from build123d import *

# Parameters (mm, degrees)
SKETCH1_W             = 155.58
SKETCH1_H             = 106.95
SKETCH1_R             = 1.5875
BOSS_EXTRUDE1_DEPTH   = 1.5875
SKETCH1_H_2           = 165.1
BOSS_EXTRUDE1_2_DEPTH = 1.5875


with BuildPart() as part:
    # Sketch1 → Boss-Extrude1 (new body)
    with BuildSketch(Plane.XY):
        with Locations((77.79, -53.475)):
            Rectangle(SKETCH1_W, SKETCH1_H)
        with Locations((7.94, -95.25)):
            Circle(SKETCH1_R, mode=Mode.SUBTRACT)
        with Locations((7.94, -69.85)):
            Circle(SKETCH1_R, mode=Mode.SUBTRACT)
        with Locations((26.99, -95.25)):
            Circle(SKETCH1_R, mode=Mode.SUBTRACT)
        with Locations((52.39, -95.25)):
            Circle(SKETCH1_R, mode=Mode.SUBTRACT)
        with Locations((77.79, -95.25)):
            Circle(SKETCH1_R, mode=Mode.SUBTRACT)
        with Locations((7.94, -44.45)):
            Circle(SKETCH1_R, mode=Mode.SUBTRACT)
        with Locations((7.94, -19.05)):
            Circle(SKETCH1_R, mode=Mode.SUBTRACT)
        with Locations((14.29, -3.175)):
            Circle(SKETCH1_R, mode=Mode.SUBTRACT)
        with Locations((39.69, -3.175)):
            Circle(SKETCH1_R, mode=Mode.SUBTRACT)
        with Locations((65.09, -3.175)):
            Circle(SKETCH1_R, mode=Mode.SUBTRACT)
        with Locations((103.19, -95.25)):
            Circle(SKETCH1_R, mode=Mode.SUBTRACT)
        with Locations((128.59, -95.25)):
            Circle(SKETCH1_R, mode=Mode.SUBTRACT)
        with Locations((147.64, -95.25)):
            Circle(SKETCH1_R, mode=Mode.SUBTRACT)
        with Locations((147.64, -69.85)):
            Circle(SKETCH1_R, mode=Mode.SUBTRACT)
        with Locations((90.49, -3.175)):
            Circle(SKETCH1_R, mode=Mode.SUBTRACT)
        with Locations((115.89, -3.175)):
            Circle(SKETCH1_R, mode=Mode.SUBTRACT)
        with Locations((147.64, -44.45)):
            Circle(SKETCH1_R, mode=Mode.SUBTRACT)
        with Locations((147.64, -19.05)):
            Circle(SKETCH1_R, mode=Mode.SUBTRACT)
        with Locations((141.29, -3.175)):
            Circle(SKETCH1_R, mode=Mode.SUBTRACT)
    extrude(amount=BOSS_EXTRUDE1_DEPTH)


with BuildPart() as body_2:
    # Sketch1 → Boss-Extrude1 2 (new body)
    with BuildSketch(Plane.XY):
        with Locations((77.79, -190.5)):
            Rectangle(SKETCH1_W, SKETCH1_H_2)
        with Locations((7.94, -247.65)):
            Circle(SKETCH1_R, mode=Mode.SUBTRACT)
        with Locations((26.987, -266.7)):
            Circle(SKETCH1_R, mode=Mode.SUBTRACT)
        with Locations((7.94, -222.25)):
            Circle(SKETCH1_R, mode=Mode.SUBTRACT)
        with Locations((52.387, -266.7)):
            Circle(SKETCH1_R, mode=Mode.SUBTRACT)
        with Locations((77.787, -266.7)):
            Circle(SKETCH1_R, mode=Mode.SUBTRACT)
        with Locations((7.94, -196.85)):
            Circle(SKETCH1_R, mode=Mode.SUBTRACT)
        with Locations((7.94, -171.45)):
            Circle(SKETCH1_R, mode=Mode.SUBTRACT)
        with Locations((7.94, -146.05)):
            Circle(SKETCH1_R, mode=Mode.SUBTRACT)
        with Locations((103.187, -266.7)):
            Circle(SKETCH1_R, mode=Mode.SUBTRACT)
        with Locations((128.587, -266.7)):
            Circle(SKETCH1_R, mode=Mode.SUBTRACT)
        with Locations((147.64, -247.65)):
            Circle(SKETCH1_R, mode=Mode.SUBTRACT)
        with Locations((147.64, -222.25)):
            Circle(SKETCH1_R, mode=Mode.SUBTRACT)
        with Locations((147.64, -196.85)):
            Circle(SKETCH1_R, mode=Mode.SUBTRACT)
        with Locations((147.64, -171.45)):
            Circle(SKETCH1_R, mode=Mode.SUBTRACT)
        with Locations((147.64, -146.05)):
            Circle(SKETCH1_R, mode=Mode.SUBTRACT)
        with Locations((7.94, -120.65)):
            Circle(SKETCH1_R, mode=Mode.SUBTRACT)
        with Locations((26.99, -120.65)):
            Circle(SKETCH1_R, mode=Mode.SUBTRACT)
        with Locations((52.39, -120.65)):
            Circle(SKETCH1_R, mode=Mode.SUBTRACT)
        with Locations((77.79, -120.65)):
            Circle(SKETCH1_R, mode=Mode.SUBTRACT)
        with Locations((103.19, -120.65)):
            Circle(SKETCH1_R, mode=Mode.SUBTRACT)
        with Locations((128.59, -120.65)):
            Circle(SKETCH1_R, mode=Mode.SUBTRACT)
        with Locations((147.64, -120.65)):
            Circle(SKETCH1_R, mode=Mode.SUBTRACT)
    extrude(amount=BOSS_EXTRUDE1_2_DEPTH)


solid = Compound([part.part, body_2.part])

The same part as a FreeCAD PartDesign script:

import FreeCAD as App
import Part
import Sketcher
Q = App.Units.Quantity

doc = App.newDocument("Part")
body = doc.addObject("PartDesign::Body", "Body")

sketch1 = body.newObject("Sketcher::SketchObject", "Sketch")
sketch1.AttachmentSupport = (doc.getObject("XY_Plane"), [""])
sketch1.MapMode = "FlatFace"
sketch1.addGeometry([
    Part.LineSegment(App.Vector(0, 0, 0), App.Vector(0, -107, 0)),
    Part.LineSegment(App.Vector(0, -107, 0), App.Vector(155.6, -107, 0)),
    Part.LineSegment(App.Vector(155.6, -107, 0), App.Vector(155.6, 0, 0)),
    Part.LineSegment(App.Vector(155.6, 0, 0), App.Vector(0, 0, 0)),
    Part.Circle(App.Vector(7.9, -95.2, 0), App.Vector(0, 0, 1), 1.6),
    Part.Circle(App.Vector(27, -95.2, 0), App.Vector(0, 0, 1), 1.6),
    Part.Circle(App.Vector(52.4, -95.2, 0), App.Vector(0, 0, 1), 1.6),
    Part.Circle(App.Vector(7.9, -69.8, 0), App.Vector(0, 0, 1), 1.6),
    Part.Circle(App.Vector(77.8, -95.2, 0), App.Vector(0, 0, 1), 1.6),
    Part.Circle(App.Vector(103.2, -95.2, 0), App.Vector(0, 0, 1), 1.6),
    Part.Circle(App.Vector(128.6, -95.2, 0), App.Vector(0, 0, 1), 1.6),
    Part.Circle(App.Vector(147.6, -95.2, 0), App.Vector(0, 0, 1), 1.6),
    Part.Circle(App.Vector(147.6, -69.8, 0), App.Vector(0, 0, 1), 1.6),
    Part.Circle(App.Vector(7.9, -44.5, 0), App.Vector(0, 0, 1), 1.6),
    Part.Circle(App.Vector(7.9, -19.1, 0), App.Vector(0, 0, 1), 1.6),
    Part.Circle(App.Vector(14.3, -3.2, 0), App.Vector(0, 0, 1), 1.6),
    Part.Circle(App.Vector(39.7, -3.2, 0), App.Vector(0, 0, 1), 1.6),
    Part.Circle(App.Vector(65.1, -3.2, 0), App.Vector(0, 0, 1), 1.6),
    Part.Circle(App.Vector(147.6, -44.5, 0), App.Vector(0, 0, 1), 1.6),
    Part.Circle(App.Vector(90.5, -3.2, 0), App.Vector(0, 0, 1), 1.6),
    Part.Circle(App.Vector(147.6, -19.1, 0), App.Vector(0, 0, 1), 1.6),
    Part.Circle(App.Vector(115.9, -3.2, 0), App.Vector(0, 0, 1), 1.6),
    Part.Circle(App.Vector(141.3, -3.2, 0), App.Vector(0, 0, 1), 1.6),
], False)
sketch1.addConstraint([
    Sketcher.Constraint("Coincident", 0, 2, 1, 1),
    Sketcher.Constraint("Coincident", 1, 2, 2, 1),
    Sketcher.Constraint("Coincident", 2, 2, 3, 1),
    Sketcher.Constraint("Coincident", 3, 2, 0, 1),
    Sketcher.Constraint("Vertical", 0),
    Sketcher.Constraint("Horizontal", 1),
    Sketcher.Constraint("Vertical", 2),
    Sketcher.Constraint("Horizontal", 3),
    Sketcher.Constraint("Coincident", 3, 2, -1, 1),
    Sketcher.Constraint("Equal", 4, 5),
    Sketcher.Constraint("Equal", 5, 6),
    Sketcher.Constraint("Equal", 6, 7),
    Sketcher.Constraint("Equal", 7, 8),
    Sketcher.Constraint("Equal", 8, 9),
    Sketcher.Constraint("Equal", 9, 10),
    Sketcher.Constraint("Equal", 10, 11),
    Sketcher.Constraint("Equal", 11, 12),
    Sketcher.Constraint("Equal", 12, 13),
    Sketcher.Constraint("Equal", 13, 14),
    Sketcher.Constraint("Equal", 14, 15),
    Sketcher.Constraint("Equal", 15, 16),
    Sketcher.Constraint("Equal", 16, 17),
    Sketcher.Constraint("Equal", 17, 18),
    Sketcher.Constraint("Equal", 18, 19),
    Sketcher.Constraint("Equal", 19, 20),
    Sketcher.Constraint("Equal", 20, 21),
    Sketcher.Constraint("Equal", 21, 22),
    Sketcher.Constraint("Horizontal", 4, 3, 5, 3),
    Sketcher.Constraint("Horizontal", 5, 3, 6, 3),
    Sketcher.Constraint("Horizontal", 6, 3, 8, 3),
    Sketcher.Constraint("Horizontal", 8, 3, 9, 3),
    Sketcher.Constraint("Horizontal", 9, 3, 10, 3),
    Sketcher.Constraint("Horizontal", 10, 3, 11, 3),
    Sketcher.Constraint("Horizontal", 7, 3, 12, 3),
    Sketcher.Constraint("Horizontal", 15, 3, 16, 3),
    Sketcher.Constraint("Horizontal", 16, 3, 17, 3),
    Sketcher.Constraint("Horizontal", 13, 3, 18, 3),
    Sketcher.Constraint("Horizontal", 17, 3, 19, 3),
    Sketcher.Constraint("Horizontal", 14, 3, 20, 3),
    Sketcher.Constraint("Horizontal", 19, 3, 21, 3),
    Sketcher.Constraint("Horizontal", 21, 3, 22, 3),
    Sketcher.Constraint("Vertical", 4, 3, 7, 3),
    Sketcher.Constraint("Vertical", 11, 3, 12, 3),
    Sketcher.Constraint("Vertical", 7, 3, 13, 3),
    Sketcher.Constraint("Vertical", 13, 3, 14, 3),
    Sketcher.Constraint("Vertical", 12, 3, 18, 3),
    Sketcher.Constraint("Vertical", 18, 3, 20, 3),
    Sketcher.Constraint("Diameter", 4, Q("0.125 in")),
    Sketcher.Constraint("DistanceX", 5, 3, 6, 3, Q("1 in")),
    Sketcher.Constraint("DistanceY", 4, 3, 7, 3, Q("1 in")),
    Sketcher.Constraint("DistanceX", 6, 3, 8, 3, Q("1 in")),
    Sketcher.Constraint("DistanceX", 8, 3, 9, 3, Q("1 in")),
    Sketcher.Constraint("DistanceX", 9, 3, 10, 3, Q("1 in")),
    Sketcher.Constraint("DistanceY", 7, 3, 13, 3, Q("1 in")),
    Sketcher.Constraint("DistanceY", 13, 3, 14, 3, Q("1 in")),
    Sketcher.Constraint("DistanceX", 15, 3, 16, 3, Q("1 in")),
    Sketcher.Constraint("DistanceX", 16, 3, 17, 3, Q("1 in")),
    Sketcher.Constraint("DistanceX", 17, 3, 19, 3, Q("1 in")),
    Sketcher.Constraint("DistanceX", 19, 3, 21, 3, Q("1 in")),
    Sketcher.Constraint("DistanceX", 21, 3, 22, 3, Q("1 in")),
    Sketcher.Constraint("DistanceX", 15, 3, 5, 3, Q("0.5 in")),
    Sketcher.Constraint("DistanceY", 4, 3, -1, 1, Q("3.75 in")),
    Sketcher.Constraint("DistanceX", 4, 3, 5, 3, Q("0.75 in")),
    Sketcher.Constraint("DistanceX", 10, 3, 11, 3, Q("0.75 in")),
    Sketcher.Constraint("DistanceY", 15, 3, -1, 1, Q("0.125 in")),
    Sketcher.Constraint("DistanceX", 1, 1, 1, 2, Q("155.58 mm")),
    Sketcher.Constraint("DistanceY", 0, 2, 0, 1, Q("106.95 mm")),
    Sketcher.Constraint("DistanceX", -1, 1, 4, 3, Q("7.94 mm")),
])
pad1 = body.newObject("PartDesign::Pad", "Pad")
pad1.Profile = sketch1
pad1.Length = Q("0.0625 in")
body2 = doc.addObject("PartDesign::Body", "Body001")

sketch2 = body2.newObject("Sketcher::SketchObject", "Sketch001")
sketch2.AttachmentSupport = (doc.getObject("XY_Plane001"), [""])
sketch2.MapMode = "FlatFace"
sketch2.addGeometry([
    Part.LineSegment(App.Vector(0, -108, 0), App.Vector(0, -273.1, 0)),
    Part.LineSegment(App.Vector(0, -273.1, 0), App.Vector(155.6, -273.1, 0)),
    Part.LineSegment(App.Vector(155.6, -273.1, 0), App.Vector(155.6, -108, 0)),
    Part.LineSegment(App.Vector(155.6, -108, 0), App.Vector(0, -108, 0)),
    Part.Circle(App.Vector(27, -266.7, 0), App.Vector(0, 0, 1), 1.6),
    Part.Circle(App.Vector(7.9, -247.7, 0), App.Vector(0, 0, 1), 1.6),
    Part.Circle(App.Vector(52.4, -266.7, 0), App.Vector(0, 0, 1), 1.6),
    Part.Circle(App.Vector(77.8, -266.7, 0), App.Vector(0, 0, 1), 1.6),
    Part.Circle(App.Vector(7.9, -222.2, 0), App.Vector(0, 0, 1), 1.6),
    Part.Circle(App.Vector(7.9, -196.8, 0), App.Vector(0, 0, 1), 1.6),
    Part.Circle(App.Vector(103.2, -266.7, 0), App.Vector(0, 0, 1), 1.6),
    Part.Circle(App.Vector(128.6, -266.7, 0), App.Vector(0, 0, 1), 1.6),
    Part.Circle(App.Vector(147.6, -247.7, 0), App.Vector(0, 0, 1), 1.6),
    Part.Circle(App.Vector(147.6, -222.2, 0), App.Vector(0, 0, 1), 1.6),
    Part.Circle(App.Vector(147.6, -196.8, 0), App.Vector(0, 0, 1), 1.6),
    Part.Circle(App.Vector(7.9, -171.4, 0), App.Vector(0, 0, 1), 1.6),
    Part.Circle(App.Vector(7.9, -146.1, 0), App.Vector(0, 0, 1), 1.6),
    Part.Circle(App.Vector(7.9, -120.7, 0), App.Vector(0, 0, 1), 1.6),
    Part.Circle(App.Vector(27, -120.7, 0), App.Vector(0, 0, 1), 1.6),
    Part.Circle(App.Vector(52.4, -120.7, 0), App.Vector(0, 0, 1), 1.6),
    Part.Circle(App.Vector(147.6, -171.4, 0), App.Vector(0, 0, 1), 1.6),
    Part.Circle(App.Vector(77.8, -120.7, 0), App.Vector(0, 0, 1), 1.6),
    Part.Circle(App.Vector(103.2, -120.7, 0), App.Vector(0, 0, 1), 1.6),
    Part.Circle(App.Vector(147.6, -146.1, 0), App.Vector(0, 0, 1), 1.6),
    Part.Circle(App.Vector(128.6, -120.7, 0), App.Vector(0, 0, 1), 1.6),
    Part.Circle(App.Vector(147.6, -120.7, 0), App.Vector(0, 0, 1), 1.6),
], False)
sketch2.addConstraint([
    Sketcher.Constraint("Coincident", 0, 2, 1, 1),
    Sketcher.Constraint("Coincident", 1, 2, 2, 1),
    Sketcher.Constraint("Coincident", 2, 2, 3, 1),
    Sketcher.Constraint("Coincident", 3, 2, 0, 1),
    Sketcher.Constraint("Vertical", 0),
    Sketcher.Constraint("Horizontal", 1),
    Sketcher.Constraint("Vertical", 2),
    Sketcher.Constraint("Horizontal", 3),
    Sketcher.Constraint("Equal", 4, 5),
    Sketcher.Constraint("Equal", 5, 6),
    Sketcher.Constraint("Equal", 6, 7),
    Sketcher.Constraint("Equal", 7, 8),
    Sketcher.Constraint("Equal", 8, 9),
    Sketcher.Constraint("Equal", 9, 10),
    Sketcher.Constraint("Equal", 10, 11),
    Sketcher.Constraint("Equal", 11, 12),
    Sketcher.Constraint("Equal", 12, 13),
    Sketcher.Constraint("Equal", 13, 14),
    Sketcher.Constraint("Equal", 14, 15),
    Sketcher.Constraint("Equal", 15, 16),
    Sketcher.Constraint("Equal", 16, 17),
    Sketcher.Constraint("Equal", 17, 18),
    Sketcher.Constraint("Equal", 18, 19),
    Sketcher.Constraint("Equal", 19, 20),
    Sketcher.Constraint("Equal", 20, 21),
    Sketcher.Constraint("Equal", 21, 22),
    Sketcher.Constraint("Equal", 22, 23),
    Sketcher.Constraint("Equal", 23, 24),
    Sketcher.Constraint("Equal", 24, 25),
    Sketcher.Constraint("PointOnObject", 0, 2, -2),
    Sketcher.Constraint("Horizontal", 4, 3, 6, 3),
    Sketcher.Constraint("Horizontal", 6, 3, 7, 3),
    Sketcher.Constraint("Horizontal", 7, 3, 10, 3),
    Sketcher.Constraint("Horizontal", 10, 3, 11, 3),
    Sketcher.Constraint("Horizontal", 5, 3, 12, 3),
    Sketcher.Constraint("Horizontal", 8, 3, 13, 3),
    Sketcher.Constraint("Horizontal", 9, 3, 14, 3),
    Sketcher.Constraint("Horizontal", 17, 3, 18, 3),
    Sketcher.Constraint("Horizontal", 18, 3, 19, 3),
    Sketcher.Constraint("Horizontal", 15, 3, 20, 3),
    Sketcher.Constraint("Horizontal", 19, 3, 21, 3),
    Sketcher.Constraint("Horizontal", 21, 3, 22, 3),
    Sketcher.Constraint("Horizontal", 16, 3, 23, 3),
    Sketcher.Constraint("Horizontal", 22, 3, 24, 3),
    Sketcher.Constraint("Horizontal", 24, 3, 25, 3),
    Sketcher.Constraint("Vertical", 5, 3, 8, 3),
    Sketcher.Constraint("Vertical", 8, 3, 9, 3),
    Sketcher.Constraint("Vertical", 12, 3, 13, 3),
    Sketcher.Constraint("Vertical", 13, 3, 14, 3),
    Sketcher.Constraint("Vertical", 9, 3, 15, 3),
    Sketcher.Constraint("Vertical", 15, 3, 16, 3),
    Sketcher.Constraint("Vertical", 16, 3, 17, 3),
    Sketcher.Constraint("Vertical", 14, 3, 20, 3),
    Sketcher.Constraint("Vertical", 20, 3, 23, 3),
    Sketcher.Constraint("Vertical", 23, 3, 25, 3),
    Sketcher.Constraint("Diameter", 4, Q("0.125 in")),
    Sketcher.Constraint("DistanceY", 0, 2, 0, 1, Q("6.5 in")),
    Sketcher.Constraint("DistanceX", 4, 3, 6, 3, Q("1 in")),
    Sketcher.Constraint("DistanceX", 6, 3, 7, 3, Q("1 in")),
    Sketcher.Constraint("DistanceY", 5, 3, 8, 3, Q("1 in")),
    Sketcher.Constraint("DistanceY", 8, 3, 9, 3, Q("1 in")),
    Sketcher.Constraint("DistanceX", 7, 3, 10, 3, Q("1 in")),
    Sketcher.Constraint("DistanceX", 10, 3, 11, 3, Q("1 in")),
    Sketcher.Constraint("DistanceY", 9, 3, 15, 3, Q("1 in")),
    Sketcher.Constraint("DistanceY", 15, 3, 16, 3, Q("1 in")),
    Sketcher.Constraint("DistanceY", 16, 3, 17, 3, Q("1 in")),
    Sketcher.Constraint("DistanceX", 18, 3, 19, 3, Q("1 in")),
    Sketcher.Constraint("DistanceX", 19, 3, 21, 3, Q("1 in")),
    Sketcher.Constraint("DistanceX", 21, 3, 22, 3, Q("1 in")),
    Sketcher.Constraint("DistanceX", 22, 3, 24, 3, Q("1 in")),
    Sketcher.Constraint("DistanceY", 0, 2, 5, 3, Q("1 in")),
    Sketcher.Constraint("DistanceY", 4, 3, -1, 1, Q("10.5 in")),
    Sketcher.Constraint("DistanceY", 5, 3, -1, 1, Q("9.75 in")),
    Sketcher.Constraint("DistanceX", 17, 3, 18, 3, Q("0.75 in")),
    Sketcher.Constraint("DistanceX", 21, 3, 20, 3, Q("2.75 in")),
    Sketcher.Constraint("DistanceX", 1, 1, 1, 2, Q("155.58 mm")),
    Sketcher.Constraint("DistanceX", -1, 1, 4, 3, Q("26.987 mm")),
    Sketcher.Constraint("DistanceX", -1, 1, 5, 3, Q("7.94 mm")),
])
pad2 = body2.newObject("PartDesign::Pad", "Pad001")
pad2.Profile = sketch2
pad2.Length = Q("0.0625 in")

doc.recompute()
